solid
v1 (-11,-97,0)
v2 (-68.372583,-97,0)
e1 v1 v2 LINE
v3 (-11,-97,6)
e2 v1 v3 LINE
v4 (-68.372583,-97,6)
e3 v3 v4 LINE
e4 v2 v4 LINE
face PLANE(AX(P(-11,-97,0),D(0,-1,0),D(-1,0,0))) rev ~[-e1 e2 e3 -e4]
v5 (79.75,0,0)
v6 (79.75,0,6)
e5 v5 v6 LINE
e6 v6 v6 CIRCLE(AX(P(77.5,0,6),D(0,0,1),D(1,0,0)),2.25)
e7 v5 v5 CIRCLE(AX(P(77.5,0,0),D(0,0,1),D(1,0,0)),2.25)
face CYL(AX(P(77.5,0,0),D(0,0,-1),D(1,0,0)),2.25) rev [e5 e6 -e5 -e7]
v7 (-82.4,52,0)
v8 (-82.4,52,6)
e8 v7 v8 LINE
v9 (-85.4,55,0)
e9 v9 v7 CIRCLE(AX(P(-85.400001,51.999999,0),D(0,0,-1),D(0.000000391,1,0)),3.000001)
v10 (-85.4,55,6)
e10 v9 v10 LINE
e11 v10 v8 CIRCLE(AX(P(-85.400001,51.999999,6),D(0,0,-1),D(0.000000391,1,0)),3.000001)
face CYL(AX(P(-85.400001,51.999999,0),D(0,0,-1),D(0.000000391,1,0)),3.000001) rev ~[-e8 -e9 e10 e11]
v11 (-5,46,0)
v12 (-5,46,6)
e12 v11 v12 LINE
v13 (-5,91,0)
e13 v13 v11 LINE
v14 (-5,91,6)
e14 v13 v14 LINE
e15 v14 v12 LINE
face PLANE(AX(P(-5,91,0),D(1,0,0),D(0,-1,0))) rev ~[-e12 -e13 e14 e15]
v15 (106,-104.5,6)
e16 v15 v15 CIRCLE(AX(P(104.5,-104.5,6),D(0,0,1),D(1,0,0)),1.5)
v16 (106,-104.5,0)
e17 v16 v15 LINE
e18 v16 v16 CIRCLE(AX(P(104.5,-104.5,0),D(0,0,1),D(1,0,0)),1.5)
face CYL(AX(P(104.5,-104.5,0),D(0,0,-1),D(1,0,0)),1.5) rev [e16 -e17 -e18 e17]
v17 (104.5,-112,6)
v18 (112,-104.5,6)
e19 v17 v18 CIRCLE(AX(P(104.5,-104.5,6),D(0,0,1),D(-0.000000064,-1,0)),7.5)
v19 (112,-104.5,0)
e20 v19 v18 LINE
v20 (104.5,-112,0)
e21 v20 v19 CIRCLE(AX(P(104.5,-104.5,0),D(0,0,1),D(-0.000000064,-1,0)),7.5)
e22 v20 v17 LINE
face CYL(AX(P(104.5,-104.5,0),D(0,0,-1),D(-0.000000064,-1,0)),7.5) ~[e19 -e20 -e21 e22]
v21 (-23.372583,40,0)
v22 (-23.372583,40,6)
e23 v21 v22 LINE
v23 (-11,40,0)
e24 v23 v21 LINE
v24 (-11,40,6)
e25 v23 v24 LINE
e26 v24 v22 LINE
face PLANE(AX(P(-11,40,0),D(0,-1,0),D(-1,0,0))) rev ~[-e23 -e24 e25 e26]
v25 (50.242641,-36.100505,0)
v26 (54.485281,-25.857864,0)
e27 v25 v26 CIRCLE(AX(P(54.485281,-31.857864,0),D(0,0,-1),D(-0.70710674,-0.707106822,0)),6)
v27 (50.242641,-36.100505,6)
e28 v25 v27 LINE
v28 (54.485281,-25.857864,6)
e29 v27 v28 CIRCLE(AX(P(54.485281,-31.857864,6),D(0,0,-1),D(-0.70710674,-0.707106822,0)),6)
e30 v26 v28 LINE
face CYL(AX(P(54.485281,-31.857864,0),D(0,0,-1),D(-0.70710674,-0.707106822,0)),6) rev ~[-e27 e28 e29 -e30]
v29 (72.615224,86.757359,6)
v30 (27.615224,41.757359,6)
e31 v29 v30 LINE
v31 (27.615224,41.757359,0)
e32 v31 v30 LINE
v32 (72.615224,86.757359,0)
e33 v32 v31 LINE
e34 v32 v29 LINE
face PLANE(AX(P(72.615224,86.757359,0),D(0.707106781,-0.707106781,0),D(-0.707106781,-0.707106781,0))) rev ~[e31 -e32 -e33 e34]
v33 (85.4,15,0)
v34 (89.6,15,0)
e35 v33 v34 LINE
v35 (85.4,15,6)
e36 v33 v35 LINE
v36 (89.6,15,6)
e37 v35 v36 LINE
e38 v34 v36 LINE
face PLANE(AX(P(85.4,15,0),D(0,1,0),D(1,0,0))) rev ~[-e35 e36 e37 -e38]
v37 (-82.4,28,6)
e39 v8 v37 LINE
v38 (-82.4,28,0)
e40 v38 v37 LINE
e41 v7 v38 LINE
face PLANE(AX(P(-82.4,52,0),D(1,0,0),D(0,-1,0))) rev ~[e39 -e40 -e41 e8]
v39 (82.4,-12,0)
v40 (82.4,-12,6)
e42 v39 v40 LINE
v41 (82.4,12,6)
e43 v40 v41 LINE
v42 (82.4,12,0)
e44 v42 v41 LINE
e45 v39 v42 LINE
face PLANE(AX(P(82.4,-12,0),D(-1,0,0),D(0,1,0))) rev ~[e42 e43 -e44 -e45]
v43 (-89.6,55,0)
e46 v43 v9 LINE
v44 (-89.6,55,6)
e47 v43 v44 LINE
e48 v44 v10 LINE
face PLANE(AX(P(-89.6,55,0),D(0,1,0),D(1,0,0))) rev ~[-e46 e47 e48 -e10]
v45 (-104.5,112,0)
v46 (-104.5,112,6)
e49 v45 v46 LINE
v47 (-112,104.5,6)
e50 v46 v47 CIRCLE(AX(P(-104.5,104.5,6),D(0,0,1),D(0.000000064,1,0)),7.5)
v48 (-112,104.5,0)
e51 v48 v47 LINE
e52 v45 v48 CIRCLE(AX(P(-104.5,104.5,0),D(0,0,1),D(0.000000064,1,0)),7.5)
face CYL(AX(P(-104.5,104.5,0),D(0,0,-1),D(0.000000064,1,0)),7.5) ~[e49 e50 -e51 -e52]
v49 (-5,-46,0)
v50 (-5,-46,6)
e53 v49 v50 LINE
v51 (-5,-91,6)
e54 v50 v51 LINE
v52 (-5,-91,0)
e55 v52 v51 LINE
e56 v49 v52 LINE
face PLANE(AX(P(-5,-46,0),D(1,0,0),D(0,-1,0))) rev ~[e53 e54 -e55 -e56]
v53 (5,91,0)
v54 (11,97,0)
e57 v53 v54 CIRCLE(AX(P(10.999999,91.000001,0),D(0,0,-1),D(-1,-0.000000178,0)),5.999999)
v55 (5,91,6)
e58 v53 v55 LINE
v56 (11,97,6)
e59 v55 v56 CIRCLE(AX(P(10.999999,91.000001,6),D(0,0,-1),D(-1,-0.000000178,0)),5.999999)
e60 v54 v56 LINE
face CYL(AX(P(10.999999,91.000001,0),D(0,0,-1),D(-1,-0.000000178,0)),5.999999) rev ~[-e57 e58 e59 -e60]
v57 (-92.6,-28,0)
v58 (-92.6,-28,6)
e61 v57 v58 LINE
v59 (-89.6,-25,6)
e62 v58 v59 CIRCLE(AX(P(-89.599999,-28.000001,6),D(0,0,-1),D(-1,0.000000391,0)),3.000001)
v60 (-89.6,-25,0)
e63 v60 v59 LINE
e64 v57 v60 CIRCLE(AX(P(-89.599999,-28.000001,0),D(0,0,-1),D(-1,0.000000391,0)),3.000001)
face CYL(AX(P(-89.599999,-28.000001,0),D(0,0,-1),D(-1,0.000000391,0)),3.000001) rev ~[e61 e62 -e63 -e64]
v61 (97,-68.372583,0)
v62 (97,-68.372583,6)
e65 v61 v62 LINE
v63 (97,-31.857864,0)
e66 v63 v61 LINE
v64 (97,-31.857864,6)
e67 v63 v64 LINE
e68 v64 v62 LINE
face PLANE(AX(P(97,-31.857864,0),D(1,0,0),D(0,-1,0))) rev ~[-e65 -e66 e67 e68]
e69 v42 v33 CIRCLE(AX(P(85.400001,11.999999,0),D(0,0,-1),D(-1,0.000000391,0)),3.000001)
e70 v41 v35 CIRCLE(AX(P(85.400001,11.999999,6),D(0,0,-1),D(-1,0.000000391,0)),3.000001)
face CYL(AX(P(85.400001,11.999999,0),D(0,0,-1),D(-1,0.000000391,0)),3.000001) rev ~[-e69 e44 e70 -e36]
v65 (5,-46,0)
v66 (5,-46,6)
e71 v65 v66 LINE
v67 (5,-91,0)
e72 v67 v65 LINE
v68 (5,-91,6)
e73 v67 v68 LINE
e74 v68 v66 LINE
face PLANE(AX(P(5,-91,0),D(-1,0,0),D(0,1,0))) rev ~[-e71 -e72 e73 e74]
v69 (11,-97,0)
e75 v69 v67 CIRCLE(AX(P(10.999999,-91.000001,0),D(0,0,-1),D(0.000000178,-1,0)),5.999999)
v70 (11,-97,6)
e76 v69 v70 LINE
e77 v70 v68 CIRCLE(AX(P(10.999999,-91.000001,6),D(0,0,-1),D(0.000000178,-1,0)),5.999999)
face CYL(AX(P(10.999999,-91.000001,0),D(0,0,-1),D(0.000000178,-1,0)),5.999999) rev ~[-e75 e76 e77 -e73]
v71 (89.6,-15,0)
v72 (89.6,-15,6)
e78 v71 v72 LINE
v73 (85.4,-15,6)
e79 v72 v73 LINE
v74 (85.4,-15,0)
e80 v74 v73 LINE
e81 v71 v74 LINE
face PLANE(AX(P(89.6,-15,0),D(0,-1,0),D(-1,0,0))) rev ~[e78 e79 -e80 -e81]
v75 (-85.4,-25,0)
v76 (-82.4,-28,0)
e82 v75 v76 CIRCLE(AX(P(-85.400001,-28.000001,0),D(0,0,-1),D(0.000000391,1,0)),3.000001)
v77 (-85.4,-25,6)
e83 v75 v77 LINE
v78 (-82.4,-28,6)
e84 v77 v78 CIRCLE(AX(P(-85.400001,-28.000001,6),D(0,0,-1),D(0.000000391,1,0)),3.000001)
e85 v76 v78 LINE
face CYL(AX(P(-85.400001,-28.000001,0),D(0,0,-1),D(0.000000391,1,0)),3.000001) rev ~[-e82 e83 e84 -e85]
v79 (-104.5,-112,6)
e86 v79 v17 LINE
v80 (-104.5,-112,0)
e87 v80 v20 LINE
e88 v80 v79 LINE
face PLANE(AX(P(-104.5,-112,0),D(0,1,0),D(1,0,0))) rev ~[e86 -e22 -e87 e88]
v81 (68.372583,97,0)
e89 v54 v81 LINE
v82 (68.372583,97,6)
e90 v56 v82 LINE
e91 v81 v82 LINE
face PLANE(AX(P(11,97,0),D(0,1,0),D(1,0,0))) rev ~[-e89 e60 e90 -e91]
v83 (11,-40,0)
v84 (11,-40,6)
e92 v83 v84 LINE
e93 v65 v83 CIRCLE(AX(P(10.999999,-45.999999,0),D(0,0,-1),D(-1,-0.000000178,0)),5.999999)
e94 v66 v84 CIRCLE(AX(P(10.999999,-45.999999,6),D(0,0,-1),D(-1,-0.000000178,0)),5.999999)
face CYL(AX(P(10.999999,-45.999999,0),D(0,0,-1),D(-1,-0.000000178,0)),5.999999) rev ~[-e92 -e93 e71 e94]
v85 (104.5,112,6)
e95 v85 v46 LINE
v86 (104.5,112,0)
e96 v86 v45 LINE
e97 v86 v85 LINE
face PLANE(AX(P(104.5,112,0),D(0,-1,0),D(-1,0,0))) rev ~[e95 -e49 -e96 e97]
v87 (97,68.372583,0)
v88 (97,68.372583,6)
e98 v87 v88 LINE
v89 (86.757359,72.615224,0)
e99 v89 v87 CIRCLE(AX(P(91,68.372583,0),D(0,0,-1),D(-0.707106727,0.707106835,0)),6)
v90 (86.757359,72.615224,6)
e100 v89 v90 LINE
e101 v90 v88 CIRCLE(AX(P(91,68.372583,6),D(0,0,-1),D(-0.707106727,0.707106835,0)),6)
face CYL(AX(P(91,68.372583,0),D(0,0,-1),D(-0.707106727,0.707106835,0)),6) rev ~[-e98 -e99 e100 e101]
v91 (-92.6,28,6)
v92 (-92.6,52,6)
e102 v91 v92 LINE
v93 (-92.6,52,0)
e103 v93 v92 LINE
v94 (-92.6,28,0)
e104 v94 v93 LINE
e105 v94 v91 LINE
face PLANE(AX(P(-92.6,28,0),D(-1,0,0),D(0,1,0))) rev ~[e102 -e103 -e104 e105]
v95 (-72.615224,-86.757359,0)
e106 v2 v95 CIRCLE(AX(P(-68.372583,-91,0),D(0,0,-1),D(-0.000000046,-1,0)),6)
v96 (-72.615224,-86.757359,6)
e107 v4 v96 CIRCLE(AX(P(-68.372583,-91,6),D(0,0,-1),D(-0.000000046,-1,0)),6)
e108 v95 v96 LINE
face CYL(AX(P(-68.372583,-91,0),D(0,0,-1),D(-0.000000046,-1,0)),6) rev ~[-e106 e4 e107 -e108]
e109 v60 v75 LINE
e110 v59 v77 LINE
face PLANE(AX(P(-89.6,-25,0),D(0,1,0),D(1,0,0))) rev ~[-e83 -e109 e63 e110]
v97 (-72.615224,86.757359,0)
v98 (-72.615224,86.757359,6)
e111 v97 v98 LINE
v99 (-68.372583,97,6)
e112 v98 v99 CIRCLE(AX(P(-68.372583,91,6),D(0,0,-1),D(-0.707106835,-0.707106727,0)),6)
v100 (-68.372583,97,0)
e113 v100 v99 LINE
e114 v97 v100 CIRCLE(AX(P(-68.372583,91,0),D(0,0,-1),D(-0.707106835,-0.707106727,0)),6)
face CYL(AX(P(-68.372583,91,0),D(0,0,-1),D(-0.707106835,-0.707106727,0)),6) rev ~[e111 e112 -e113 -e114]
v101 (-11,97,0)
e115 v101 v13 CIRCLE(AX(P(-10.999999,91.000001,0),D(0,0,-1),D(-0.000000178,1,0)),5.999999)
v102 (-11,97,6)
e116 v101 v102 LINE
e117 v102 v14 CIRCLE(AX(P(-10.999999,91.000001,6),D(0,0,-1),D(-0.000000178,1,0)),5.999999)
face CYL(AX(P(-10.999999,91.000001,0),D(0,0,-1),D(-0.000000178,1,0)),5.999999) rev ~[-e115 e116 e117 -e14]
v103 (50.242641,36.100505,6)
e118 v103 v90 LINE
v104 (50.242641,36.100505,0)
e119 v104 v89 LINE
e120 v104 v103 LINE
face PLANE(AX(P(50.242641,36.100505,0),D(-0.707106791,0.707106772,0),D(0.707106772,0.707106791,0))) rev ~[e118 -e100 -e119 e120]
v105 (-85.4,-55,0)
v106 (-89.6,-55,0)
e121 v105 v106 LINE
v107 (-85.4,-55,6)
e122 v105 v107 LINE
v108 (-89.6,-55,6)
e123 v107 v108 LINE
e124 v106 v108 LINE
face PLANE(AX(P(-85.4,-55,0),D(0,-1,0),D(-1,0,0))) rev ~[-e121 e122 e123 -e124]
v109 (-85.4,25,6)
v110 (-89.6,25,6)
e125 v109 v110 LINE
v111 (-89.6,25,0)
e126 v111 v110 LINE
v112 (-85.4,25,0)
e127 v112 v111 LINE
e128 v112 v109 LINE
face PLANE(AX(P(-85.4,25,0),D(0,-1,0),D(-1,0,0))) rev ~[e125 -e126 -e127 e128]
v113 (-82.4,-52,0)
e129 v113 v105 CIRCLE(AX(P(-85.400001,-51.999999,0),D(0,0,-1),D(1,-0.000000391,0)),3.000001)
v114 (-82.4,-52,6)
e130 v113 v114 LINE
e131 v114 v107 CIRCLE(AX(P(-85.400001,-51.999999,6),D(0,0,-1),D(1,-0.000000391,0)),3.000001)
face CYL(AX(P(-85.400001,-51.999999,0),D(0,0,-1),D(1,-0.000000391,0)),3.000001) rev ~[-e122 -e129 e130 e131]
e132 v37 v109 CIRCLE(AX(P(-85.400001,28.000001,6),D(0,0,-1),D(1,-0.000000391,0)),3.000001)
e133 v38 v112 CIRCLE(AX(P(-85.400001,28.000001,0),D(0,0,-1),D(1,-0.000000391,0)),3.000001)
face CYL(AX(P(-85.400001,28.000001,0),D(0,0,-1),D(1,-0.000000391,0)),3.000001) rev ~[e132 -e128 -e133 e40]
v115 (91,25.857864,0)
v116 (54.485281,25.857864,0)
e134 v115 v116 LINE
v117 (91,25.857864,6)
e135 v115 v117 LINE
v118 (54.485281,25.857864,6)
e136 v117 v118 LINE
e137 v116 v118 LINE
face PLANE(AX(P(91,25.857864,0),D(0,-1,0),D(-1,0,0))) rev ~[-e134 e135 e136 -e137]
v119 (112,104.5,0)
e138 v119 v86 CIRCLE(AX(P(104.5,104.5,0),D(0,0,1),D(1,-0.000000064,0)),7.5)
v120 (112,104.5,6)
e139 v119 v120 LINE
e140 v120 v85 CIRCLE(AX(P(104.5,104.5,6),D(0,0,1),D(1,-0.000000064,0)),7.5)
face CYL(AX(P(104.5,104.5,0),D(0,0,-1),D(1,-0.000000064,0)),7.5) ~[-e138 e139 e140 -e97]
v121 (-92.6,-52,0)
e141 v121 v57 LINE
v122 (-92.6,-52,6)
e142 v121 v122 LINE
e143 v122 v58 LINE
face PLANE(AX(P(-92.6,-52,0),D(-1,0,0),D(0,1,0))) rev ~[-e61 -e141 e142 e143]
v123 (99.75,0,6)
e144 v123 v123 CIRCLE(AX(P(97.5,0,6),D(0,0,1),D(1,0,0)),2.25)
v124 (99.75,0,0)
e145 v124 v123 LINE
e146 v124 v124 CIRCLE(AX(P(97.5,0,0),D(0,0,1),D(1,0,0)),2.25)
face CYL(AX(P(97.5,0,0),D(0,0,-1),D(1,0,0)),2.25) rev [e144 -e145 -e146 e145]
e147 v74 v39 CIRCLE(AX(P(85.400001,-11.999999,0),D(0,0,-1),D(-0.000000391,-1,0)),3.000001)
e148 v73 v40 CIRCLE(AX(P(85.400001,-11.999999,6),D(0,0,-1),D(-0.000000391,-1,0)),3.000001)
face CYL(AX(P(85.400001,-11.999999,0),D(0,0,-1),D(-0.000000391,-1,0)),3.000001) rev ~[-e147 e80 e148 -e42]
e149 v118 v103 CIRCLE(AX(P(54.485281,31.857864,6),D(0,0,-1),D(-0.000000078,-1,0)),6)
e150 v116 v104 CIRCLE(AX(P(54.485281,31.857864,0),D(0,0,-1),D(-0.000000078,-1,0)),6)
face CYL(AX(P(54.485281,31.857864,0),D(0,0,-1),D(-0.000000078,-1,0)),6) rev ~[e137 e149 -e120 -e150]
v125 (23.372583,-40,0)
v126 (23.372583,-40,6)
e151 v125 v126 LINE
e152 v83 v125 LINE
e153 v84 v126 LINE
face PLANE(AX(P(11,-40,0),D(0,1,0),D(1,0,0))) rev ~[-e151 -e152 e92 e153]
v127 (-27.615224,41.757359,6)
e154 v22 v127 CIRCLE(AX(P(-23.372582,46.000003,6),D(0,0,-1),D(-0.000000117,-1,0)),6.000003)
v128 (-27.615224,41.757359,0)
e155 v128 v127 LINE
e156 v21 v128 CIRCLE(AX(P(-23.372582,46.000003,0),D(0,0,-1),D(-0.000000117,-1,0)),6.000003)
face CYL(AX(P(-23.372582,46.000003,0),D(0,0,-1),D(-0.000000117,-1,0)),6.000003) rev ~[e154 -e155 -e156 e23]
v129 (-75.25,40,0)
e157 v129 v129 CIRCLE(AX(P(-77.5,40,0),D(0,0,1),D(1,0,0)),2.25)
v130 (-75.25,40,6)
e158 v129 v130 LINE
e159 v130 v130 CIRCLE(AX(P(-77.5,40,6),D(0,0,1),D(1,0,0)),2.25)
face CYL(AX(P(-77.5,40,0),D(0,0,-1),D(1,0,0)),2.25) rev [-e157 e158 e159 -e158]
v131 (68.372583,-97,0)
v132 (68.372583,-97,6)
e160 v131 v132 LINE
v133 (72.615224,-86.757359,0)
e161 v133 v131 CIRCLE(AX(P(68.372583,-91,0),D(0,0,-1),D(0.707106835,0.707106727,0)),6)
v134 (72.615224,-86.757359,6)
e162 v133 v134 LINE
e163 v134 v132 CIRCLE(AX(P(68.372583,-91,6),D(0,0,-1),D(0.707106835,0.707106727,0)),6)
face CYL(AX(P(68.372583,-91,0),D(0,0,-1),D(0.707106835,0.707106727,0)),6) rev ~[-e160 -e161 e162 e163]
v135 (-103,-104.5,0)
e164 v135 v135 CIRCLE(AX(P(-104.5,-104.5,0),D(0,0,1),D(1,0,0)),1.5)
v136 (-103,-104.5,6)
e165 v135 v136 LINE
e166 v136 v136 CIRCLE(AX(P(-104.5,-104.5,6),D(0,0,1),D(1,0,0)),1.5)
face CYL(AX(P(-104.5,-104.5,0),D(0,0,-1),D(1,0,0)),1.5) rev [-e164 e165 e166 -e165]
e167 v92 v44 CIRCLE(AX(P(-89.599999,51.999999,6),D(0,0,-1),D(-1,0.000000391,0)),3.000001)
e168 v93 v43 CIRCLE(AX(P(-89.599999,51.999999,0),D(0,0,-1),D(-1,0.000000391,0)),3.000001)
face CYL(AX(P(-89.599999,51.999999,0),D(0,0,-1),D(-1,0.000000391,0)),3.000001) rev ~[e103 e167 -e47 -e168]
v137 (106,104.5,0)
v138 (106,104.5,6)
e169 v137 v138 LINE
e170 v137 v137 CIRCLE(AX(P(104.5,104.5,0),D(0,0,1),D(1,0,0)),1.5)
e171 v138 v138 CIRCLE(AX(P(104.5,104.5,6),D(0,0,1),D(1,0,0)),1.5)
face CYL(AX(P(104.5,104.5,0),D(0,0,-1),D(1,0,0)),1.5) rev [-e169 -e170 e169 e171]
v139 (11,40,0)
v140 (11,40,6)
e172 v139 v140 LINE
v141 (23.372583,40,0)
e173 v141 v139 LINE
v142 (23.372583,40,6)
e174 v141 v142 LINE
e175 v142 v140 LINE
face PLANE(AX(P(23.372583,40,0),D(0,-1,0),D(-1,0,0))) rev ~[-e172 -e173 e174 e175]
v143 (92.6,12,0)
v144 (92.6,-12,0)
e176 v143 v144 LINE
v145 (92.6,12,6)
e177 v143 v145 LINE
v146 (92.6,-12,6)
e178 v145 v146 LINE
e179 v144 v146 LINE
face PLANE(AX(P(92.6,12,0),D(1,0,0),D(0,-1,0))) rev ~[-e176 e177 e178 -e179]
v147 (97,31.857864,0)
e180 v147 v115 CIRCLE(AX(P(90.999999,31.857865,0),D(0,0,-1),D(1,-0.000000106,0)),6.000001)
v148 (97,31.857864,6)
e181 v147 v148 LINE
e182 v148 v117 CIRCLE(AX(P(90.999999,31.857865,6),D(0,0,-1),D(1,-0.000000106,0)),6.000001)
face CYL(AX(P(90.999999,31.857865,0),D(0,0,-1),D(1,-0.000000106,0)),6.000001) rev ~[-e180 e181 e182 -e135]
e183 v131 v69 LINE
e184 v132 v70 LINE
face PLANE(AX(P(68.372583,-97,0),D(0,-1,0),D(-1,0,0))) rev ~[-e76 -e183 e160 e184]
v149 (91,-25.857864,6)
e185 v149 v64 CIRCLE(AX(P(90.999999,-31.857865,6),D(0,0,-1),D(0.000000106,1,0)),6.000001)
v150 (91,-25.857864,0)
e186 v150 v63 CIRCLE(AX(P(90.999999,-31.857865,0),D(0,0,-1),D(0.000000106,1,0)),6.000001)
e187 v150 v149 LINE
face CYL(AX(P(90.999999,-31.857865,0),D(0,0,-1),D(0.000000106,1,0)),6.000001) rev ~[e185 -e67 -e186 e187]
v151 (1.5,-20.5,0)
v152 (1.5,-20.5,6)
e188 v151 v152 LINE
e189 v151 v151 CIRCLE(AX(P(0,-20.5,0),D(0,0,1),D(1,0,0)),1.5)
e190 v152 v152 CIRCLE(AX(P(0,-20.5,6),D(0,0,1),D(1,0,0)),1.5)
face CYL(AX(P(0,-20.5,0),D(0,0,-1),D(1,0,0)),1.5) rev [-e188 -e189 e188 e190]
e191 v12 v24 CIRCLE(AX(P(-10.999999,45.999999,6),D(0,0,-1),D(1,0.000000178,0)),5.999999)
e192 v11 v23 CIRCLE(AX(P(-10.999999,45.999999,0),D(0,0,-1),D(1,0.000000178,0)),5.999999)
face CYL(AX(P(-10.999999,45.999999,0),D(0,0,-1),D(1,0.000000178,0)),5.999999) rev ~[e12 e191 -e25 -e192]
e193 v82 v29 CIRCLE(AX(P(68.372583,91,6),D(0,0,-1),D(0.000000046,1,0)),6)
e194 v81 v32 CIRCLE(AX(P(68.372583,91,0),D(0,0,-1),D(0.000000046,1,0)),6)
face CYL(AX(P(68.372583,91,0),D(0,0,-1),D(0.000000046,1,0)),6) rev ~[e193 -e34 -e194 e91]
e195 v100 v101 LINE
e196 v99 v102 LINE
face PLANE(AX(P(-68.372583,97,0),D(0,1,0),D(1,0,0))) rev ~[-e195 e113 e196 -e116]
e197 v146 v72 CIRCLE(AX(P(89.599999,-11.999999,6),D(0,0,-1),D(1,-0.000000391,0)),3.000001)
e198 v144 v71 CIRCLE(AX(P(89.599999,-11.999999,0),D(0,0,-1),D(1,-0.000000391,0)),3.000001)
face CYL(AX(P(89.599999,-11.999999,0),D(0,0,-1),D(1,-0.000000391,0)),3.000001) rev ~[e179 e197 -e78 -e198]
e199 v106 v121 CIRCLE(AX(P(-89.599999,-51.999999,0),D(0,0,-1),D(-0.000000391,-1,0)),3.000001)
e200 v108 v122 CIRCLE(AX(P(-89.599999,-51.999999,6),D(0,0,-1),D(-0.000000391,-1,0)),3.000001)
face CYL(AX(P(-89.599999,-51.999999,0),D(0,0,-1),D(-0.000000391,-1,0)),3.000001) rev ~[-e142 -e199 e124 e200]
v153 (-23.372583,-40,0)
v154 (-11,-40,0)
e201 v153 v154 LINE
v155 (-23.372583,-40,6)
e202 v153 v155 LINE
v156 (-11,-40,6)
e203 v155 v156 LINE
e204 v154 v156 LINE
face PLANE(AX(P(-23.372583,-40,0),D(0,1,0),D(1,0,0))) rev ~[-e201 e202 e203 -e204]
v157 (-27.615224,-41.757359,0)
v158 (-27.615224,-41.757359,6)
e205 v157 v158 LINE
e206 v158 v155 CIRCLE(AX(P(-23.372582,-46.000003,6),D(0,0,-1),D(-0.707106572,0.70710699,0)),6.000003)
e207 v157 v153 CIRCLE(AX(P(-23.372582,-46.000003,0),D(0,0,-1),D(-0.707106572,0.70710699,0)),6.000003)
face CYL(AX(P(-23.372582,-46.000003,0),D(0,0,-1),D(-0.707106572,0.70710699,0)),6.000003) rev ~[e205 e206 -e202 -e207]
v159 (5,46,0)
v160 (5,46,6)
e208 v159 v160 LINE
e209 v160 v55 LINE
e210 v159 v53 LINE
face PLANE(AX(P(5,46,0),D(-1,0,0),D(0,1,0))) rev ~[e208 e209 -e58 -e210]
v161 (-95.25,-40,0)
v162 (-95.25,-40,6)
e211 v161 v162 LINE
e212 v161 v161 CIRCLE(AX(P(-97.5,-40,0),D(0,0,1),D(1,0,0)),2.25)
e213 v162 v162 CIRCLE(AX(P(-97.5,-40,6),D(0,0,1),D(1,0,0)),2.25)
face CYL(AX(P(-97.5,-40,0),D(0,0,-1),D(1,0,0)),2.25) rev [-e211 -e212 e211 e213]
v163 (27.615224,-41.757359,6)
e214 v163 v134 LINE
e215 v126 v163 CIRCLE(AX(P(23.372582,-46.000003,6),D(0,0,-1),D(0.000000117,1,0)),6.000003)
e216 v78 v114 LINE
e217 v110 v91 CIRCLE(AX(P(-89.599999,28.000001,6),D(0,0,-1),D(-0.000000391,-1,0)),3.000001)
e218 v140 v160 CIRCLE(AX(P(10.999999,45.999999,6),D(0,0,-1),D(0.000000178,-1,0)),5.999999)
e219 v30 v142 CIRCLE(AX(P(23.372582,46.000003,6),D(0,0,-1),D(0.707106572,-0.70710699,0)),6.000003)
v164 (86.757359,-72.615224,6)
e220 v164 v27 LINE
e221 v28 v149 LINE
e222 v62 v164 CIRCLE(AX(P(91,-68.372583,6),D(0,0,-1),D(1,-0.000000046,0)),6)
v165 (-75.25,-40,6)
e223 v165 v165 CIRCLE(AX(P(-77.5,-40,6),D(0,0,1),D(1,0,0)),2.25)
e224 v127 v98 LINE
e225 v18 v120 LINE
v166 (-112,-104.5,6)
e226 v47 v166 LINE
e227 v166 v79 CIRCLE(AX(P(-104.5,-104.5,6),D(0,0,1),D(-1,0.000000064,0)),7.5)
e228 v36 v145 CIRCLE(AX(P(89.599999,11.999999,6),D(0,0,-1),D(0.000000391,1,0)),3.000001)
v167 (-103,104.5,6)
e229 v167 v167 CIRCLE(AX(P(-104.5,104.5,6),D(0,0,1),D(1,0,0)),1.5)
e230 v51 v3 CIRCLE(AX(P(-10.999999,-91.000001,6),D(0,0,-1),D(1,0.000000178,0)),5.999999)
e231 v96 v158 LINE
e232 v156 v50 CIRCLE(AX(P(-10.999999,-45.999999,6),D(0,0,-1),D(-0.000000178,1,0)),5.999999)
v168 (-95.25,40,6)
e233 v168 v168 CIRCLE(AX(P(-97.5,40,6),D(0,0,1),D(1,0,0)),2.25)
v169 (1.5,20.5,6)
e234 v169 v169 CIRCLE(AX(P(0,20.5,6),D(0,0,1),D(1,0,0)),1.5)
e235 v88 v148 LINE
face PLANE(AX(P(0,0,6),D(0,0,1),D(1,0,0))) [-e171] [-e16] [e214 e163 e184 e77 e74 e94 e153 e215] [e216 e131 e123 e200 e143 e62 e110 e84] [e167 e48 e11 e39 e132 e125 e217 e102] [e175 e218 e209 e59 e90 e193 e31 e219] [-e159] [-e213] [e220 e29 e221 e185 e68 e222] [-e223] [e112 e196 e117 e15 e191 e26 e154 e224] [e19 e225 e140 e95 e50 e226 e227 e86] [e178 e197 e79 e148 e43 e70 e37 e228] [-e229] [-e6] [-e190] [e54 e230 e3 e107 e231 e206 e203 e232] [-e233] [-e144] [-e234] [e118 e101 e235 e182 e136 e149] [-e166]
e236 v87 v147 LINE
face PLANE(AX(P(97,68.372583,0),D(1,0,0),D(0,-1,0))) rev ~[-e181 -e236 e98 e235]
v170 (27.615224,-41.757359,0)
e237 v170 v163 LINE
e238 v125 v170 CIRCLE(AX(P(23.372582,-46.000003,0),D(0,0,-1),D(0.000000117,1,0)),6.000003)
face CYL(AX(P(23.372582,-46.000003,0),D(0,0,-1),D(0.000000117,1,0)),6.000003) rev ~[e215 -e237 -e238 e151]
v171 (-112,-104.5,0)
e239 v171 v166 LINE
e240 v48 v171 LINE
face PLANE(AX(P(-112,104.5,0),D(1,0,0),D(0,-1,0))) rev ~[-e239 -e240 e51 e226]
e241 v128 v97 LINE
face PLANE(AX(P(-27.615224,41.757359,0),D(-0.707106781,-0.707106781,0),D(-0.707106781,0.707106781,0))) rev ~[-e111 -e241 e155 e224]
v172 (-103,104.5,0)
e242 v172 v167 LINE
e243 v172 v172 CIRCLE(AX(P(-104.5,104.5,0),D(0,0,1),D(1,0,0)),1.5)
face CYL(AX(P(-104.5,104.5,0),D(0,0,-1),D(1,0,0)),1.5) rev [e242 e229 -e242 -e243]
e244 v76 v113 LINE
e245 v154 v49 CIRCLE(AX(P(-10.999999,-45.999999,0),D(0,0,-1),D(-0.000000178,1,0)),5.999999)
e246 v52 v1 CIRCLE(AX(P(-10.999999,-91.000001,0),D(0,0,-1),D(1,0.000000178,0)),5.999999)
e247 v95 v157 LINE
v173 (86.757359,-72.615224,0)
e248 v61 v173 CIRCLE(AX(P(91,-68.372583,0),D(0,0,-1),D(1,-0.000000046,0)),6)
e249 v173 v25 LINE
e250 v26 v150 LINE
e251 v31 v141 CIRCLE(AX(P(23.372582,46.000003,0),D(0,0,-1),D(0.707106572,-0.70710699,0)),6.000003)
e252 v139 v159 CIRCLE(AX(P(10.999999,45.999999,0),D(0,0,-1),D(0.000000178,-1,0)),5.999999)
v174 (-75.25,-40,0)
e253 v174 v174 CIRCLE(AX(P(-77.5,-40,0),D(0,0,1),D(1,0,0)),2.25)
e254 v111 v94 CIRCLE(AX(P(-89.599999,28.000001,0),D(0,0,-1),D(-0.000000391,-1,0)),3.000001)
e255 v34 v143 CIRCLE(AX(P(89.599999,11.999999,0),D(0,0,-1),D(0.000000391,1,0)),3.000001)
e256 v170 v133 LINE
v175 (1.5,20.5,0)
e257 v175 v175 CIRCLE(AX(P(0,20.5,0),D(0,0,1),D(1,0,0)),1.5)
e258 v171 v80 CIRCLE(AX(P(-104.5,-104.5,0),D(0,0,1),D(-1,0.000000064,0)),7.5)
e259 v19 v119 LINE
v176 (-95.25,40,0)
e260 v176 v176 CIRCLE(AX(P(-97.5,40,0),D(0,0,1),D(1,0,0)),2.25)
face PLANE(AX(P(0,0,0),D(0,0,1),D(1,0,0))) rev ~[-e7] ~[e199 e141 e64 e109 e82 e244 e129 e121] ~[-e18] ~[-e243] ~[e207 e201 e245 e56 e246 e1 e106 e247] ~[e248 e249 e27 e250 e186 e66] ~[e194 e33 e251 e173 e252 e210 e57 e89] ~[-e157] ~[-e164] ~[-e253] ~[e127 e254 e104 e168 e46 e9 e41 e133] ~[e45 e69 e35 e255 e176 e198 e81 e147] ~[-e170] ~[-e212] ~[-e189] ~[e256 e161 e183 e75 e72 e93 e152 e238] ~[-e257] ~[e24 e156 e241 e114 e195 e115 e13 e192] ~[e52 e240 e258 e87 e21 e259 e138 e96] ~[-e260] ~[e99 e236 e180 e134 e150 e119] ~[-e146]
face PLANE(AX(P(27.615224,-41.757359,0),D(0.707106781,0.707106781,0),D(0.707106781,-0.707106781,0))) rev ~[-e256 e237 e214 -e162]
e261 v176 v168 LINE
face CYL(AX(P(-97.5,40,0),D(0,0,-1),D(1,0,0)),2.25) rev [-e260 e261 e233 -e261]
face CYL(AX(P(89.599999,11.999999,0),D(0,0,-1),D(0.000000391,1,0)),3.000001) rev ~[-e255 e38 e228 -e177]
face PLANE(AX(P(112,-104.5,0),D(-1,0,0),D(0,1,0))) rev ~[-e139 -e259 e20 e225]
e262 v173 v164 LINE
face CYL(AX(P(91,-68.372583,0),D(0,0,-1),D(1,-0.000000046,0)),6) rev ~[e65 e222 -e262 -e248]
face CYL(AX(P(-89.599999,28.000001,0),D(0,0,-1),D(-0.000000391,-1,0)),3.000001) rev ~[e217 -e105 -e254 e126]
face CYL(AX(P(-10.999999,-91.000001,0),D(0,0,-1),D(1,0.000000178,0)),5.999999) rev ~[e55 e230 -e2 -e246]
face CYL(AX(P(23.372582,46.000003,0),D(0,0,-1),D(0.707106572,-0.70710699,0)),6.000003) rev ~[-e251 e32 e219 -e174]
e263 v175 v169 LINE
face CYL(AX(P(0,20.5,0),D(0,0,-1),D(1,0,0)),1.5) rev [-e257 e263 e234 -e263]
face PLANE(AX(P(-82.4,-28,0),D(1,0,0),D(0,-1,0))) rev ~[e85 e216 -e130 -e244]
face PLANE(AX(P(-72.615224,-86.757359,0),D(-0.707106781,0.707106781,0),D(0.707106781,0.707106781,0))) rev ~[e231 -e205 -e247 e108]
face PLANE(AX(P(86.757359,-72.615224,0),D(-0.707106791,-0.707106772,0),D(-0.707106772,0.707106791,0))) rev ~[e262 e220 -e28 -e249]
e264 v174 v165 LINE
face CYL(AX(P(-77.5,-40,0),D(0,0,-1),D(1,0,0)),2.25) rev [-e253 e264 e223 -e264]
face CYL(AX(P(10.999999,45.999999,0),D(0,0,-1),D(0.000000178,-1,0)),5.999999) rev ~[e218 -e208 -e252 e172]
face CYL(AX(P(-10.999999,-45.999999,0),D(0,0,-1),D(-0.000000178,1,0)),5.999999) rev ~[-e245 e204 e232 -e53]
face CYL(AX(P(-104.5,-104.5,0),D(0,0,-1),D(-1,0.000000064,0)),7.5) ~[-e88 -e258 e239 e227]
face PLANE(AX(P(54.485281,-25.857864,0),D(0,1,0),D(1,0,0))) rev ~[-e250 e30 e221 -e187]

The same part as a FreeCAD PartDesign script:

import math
import FreeCAD as App
import Part
import Sketcher

doc = App.newDocument("Part")
params = doc.addObject("Spreadsheet::Sheet", "Params")
for row, (alias, value) in enumerate([
    ("sketch1_diameter", "3 mm"),
    ("sketch1_radius", "6 mm"),
    ("sketch1_radius2", "3.000001 mm"),
    ("sketch1_diameter2", "4.5 mm"),
    ("sketch1_radius3", "7.5 mm"),
    ("pad1_length", "6 mm"),
], start=1):
    params.set(f"A{row}", alias)
    params.set(f"B{row}", "=" + value)
    params.setAlias(f"B{row}", alias)

body = doc.addObject("PartDesign::Body", "Body")

sketch1 = body.newObject("Sketcher::SketchObject", "Sketch")
sketch1.AttachmentSupport = (doc.getObject("XY_Plane"), [""])
sketch1.MapMode = "FlatFace"
sketch1.addGeometry(Part.LineSegment(App.Vector(104.5, 112, 0), App.Vector(-104.5, 112, 0)), False)
sketch1.addGeometry(Part.ArcOfCircle(Part.Circle(App.Vector(-104.5, 104.5, 0), App.Vector(0, 0, 1), 7.5), math.radians(90), math.radians(180)), False)
sketch1.addGeometry(Part.LineSegment(App.Vector(-112, 104.5, 0), App.Vector(-112, -104.5, 0)), False)
sketch1.addGeometry(Part.ArcOfCircle(Part.Circle(App.Vector(-104.5, -104.5, 0), App.Vector(0, 0, 1), 7.5), math.radians(180), math.radians(270)), False)
sketch1.addGeometry(Part.LineSegment(App.Vector(-104.5, -112, 0), App.Vector(104.5, -112, 0)), False)
sketch1.addGeometry(Part.ArcOfCircle(Part.Circle(App.Vector(104.5, -104.5, 0), App.Vector(0, 0, 1), 7.5), math.radians(-90), math.radians(0)), False)
sketch1.addGeometry(Part.LineSegment(App.Vector(112, -104.5, 0), App.Vector(112, 104.5, 0)), False)
sketch1.addGeometry(Part.ArcOfCircle(Part.Circle(App.Vector(104.5, 104.5, 0), App.Vector(0, 0, 1), 7.5), math.radians(0), math.radians(90)), False)
sketch1.addGeometry(Part.Circle(App.Vector(-104.5, -104.5, 0), App.Vector(0, 0, 1), 1.5), False)
sketch1.addGeometry(Part.ArcOfCircle(Part.Circle(App.Vector(-68.4, -91, 0), App.Vector(0, 0, 1), 6), math.radians(135), math.radians(270)), False)
sketch1.addGeometry(Part.LineSegment(App.Vector(-72.6, -86.8, 0), App.Vector(-27.6, -41.8, 0)), False)
sketch1.addGeometry(Part.ArcOfCircle(Part.Circle(App.Vector(-23.4, -46, 0), App.Vector(0, 0, 1), 6), math.radians(90), math.radians(135)), False)
sketch1.addGeometry(Part.LineSegment(App.Vector(-23.4, -40, 0), App.Vector(-11, -40, 0)), False)
sketch1.addGeometry(Part.ArcOfCircle(Part.Circle(App.Vector(-11, -46, 0), App.Vector(0, 0, 1), 6), math.radians(0), math.radians(90)), False)
sketch1.addGeometry(Part.LineSegment(App.Vector(-5, -46, 0), App.Vector(-5, -91, 0)), False)
sketch1.addGeometry(Part.ArcOfCircle(Part.Circle(App.Vector(-11, -91, 0), App.Vector(0, 0, 1), 6), math.radians(-90), math.radians(0)), False)
sketch1.addGeometry(Part.LineSegment(App.Vector(-11, -97, 0), App.Vector(-68.4, -97, 0)), False)
sketch1.addGeometry(Part.Circle(App.Vector(-97.5, -40, 0), App.Vector(0, 0, 1), 2.2), False)
sketch1.addGeometry(Part.ArcOfCircle(Part.Circle(App.Vector(-89.6, -28, 0), App.Vector(0, 0, 1), 3), math.radians(90), math.radians(180)), False)
sketch1.addGeometry(Part.LineSegment(App.Vector(-89.6, -25, 0), App.Vector(-85.4, -25, 0)), False)
sketch1.addGeometry(Part.ArcOfCircle(Part.Circle(App.Vector(-85.4, -28, 0), App.Vector(0, 0, 1), 3), math.radians(0), math.radians(90)), False)
sketch1.addGeometry(Part.LineSegment(App.Vector(-82.4, -28, 0), App.Vector(-82.4, -52, 0)), False)
sketch1.addGeometry(Part.ArcOfCircle(Part.Circle(App.Vector(-85.4, -52, 0), App.Vector(0, 0, 1), 3), math.radians(-90), math.radians(0)), False)
sketch1.addGeometry(Part.LineSegment(App.Vector(-85.4, -55, 0), App.Vector(-89.6, -55, 0)), False)
sketch1.addGeometry(Part.ArcOfCircle(Part.Circle(App.Vector(-89.6, -52, 0), App.Vector(0, 0, 1), 3), math.radians(-180), math.radians(-90)), False)
sketch1.addGeometry(Part.LineSegment(App.Vector(-92.6, -52, 0), App.Vector(-92.6, -28, 0)), False)
sketch1.addGeometry(Part.Circle(App.Vector(-77.5, -40, 0), App.Vector(0, 0, 1), 2.2), False)
sketch1.addGeometry(Part.LineSegment(App.Vector(11, -40, 0), App.Vector(23.4, -40, 0)), False)
sketch1.addGeometry(Part.ArcOfCircle(Part.Circle(App.Vector(23.4, -46, 0), App.Vector(0, 0, 1), 6), math.radians(45), math.radians(90)), False)
sketch1.addGeometry(Part.LineSegment(App.Vector(27.6, -41.8, 0), App.Vector(72.6, -86.8, 0)), False)
sketch1.addGeometry(Part.ArcOfCircle(Part.Circle(App.Vector(68.4, -91, 0), App.Vector(0, 0, 1), 6), math.radians(-90), math.radians(45)), False)
sketch1.addGeometry(Part.LineSegment(App.Vector(68.4, -97, 0), App.Vector(11, -97, 0)), False)
sketch1.addGeometry(Part.ArcOfCircle(Part.Circle(App.Vector(11, -91, 0), App.Vector(0, 0, 1), 6), math.radians(180), math.radians(270)), False)
sketch1.addGeometry(Part.LineSegment(App.Vector(5, -91, 0), App.Vector(5, -46, 0)), False)
sketch1.addGeometry(Part.ArcOfCircle(Part.Circle(App.Vector(11, -46, 0), App.Vector(0, 0, 1), 6), math.radians(90), math.radians(180)), False)
sketch1.addGeometry(Part.Circle(App.Vector(104.5, -104.5, 0), App.Vector(0, 0, 1), 1.5), False)
sketch1.addGeometry(Part.Circle(App.Vector(0, -20.5, 0), App.Vector(0, 0, 1), 1.5), False)
sketch1.addGeometry(Part.LineSegment(App.Vector(97, -31.9, 0), App.Vector(97, -68.4, 0)), False)
sketch1.addGeometry(Part.ArcOfCircle(Part.Circle(App.Vector(91, -68.4, 0), App.Vector(0, 0, 1), 6), math.radians(-135), math.radians(0)), False)
sketch1.addGeometry(Part.LineSegment(App.Vector(86.8, -72.6, 0), App.Vector(50.2, -36.1, 0)), False)
sketch1.addGeometry(Part.ArcOfCircle(Part.Circle(App.Vector(54.5, -31.9, 0), App.Vector(0, 0, 1), 6), math.radians(90), math.radians(225)), False)
sketch1.addGeometry(Part.LineSegment(App.Vector(54.5, -25.9, 0), App.Vector(91, -25.9, 0)), False)
sketch1.addGeometry(Part.ArcOfCircle(Part.Circle(App.Vector(91, -31.9, 0), App.Vector(0, 0, 1), 6), math.radians(0), math.radians(90)), False)
sketch1.addGeometry(Part.Circle(App.Vector(-97.5, 40, 0), App.Vector(0, 0, 1), 2.2), False)
sketch1.addGeometry(Part.LineSegment(App.Vector(-82.4, 52, 0), App.Vector(-82.4, 28, 0)), False)
sketch1.addGeometry(Part.ArcOfCircle(Part.Circle(App.Vector(-85.4, 28, 0), App.Vector(0, 0, 1), 3), math.radians(-90), math.radians(0)), False)
sketch1.addGeometry(Part.LineSegment(App.Vector(-85.4, 25, 0), App.Vector(-89.6, 25, 0)), False)
sketch1.addGeometry(Part.ArcOfCircle(Part.Circle(App.Vector(-89.6, 28, 0), App.Vector(0, 0, 1), 3), math.radians(-180), math.radians(-90)), False)
sketch1.addGeometry(Part.LineSegment(App.Vector(-92.6, 28, 0), App.Vector(-92.6, 52, 0)), False)
sketch1.addGeometry(Part.ArcOfCircle(Part.Circle(App.Vector(-89.6, 52, 0), App.Vector(0, 0, 1), 3), math.radians(90), math.radians(180)), False)
sketch1.addGeometry(Part.LineSegment(App.Vector(-89.6, 55, 0), App.Vector(-85.4, 55, 0)), False)
sketch1.addGeometry(Part.ArcOfCircle(Part.Circle(App.Vector(-85.4, 52, 0), App.Vector(0, 0, 1), 3), math.radians(0), math.radians(90)), False)
sketch1.addGeometry(Part.Circle(App.Vector(-77.5, 40, 0), App.Vector(0, 0, 1), 2.2), False)
sketch1.addGeometry(Part.Circle(App.Vector(-104.5, 104.5, 0), App.Vector(0, 0, 1), 1.5), False)
sketch1.addGeometry(Part.LineSegment(App.Vector(-68.4, 97, 0), App.Vector(-11, 97, 0)), False)
sketch1.addGeometry(Part.ArcOfCircle(Part.Circle(App.Vector(-11, 91, 0), App.Vector(0, 0, 1), 6), math.radians(0), math.radians(90)), False)
sketch1.addGeometry(Part.LineSegment(App.Vector(-5, 91, 0), App.Vector(-5, 46, 0)), False)
sketch1.addGeometry(Part.ArcOfCircle(Part.Circle(App.Vector(-11, 46, 0), App.Vector(0, 0, 1), 6), math.radians(-90), math.radians(0)), False)
sketch1.addGeometry(Part.LineSegment(App.Vector(-11, 40, 0), App.Vector(-23.4, 40, 0)), False)
sketch1.addGeometry(Part.ArcOfCircle(Part.Circle(App.Vector(-23.4, 46, 0), App.Vector(0, 0, 1), 6), math.radians(-135), math.radians(-90)), False)
sketch1.addGeometry(Part.LineSegment(App.Vector(-27.6, 41.8, 0), App.Vector(-72.6, 86.8, 0)), False)
sketch1.addGeometry(Part.ArcOfCircle(Part.Circle(App.Vector(-68.4, 91, 0), App.Vector(0, 0, 1), 6), math.radians(90), math.radians(225)), False)
sketch1.addGeometry(Part.Circle(App.Vector(0, 20.5, 0), App.Vector(0, 0, 1), 1.5), False)
sketch1.addGeometry(Part.Circle(App.Vector(77.5, 0, 0), App.Vector(0, 0, 1), 2.2), False)
sketch1.addGeometry(Part.ArcOfCircle(Part.Circle(App.Vector(85.4, 12, 0), App.Vector(0, 0, 1), 3), math.radians(90), math.radians(180)), False)
sketch1.addGeometry(Part.LineSegment(App.Vector(85.4, 15, 0), App.Vector(89.6, 15, 0)), False)
sketch1.addGeometry(Part.ArcOfCircle(Part.Circle(App.Vector(89.6, 12, 0), App.Vector(0, 0, 1), 3), math.radians(0), math.radians(90)), False)
sketch1.addGeometry(Part.LineSegment(App.Vector(92.6, 12, 0), App.Vector(92.6, -12, 0)), False)
sketch1.addGeometry(Part.ArcOfCircle(Part.Circle(App.Vector(89.6, -12, 0), App.Vector(0, 0, 1), 3), math.radians(-90), math.radians(0)), False)
sketch1.addGeometry(Part.LineSegment(App.Vector(89.6, -15, 0), App.Vector(85.4, -15, 0)), False)
sketch1.addGeometry(Part.ArcOfCircle(Part.Circle(App.Vector(85.4, -12, 0), App.Vector(0, 0, 1), 3), math.radians(-180), math.radians(-90)), False)
sketch1.addGeometry(Part.LineSegment(App.Vector(82.4, -12, 0), App.Vector(82.4, 12, 0)), False)
sketch1.addGeometry(Part.Circle(App.Vector(97.5, 0, 0), App.Vector(0, 0, 1), 2.2), False)
sketch1.addGeometry(Part.LineSegment(App.Vector(91, 25.9, 0), App.Vector(54.5, 25.9, 0)), False)
sketch1.addGeometry(Part.ArcOfCircle(Part.Circle(App.Vector(54.5, 31.9, 0), App.Vector(0, 0, 1), 6), math.radians(135), math.radians(270)), False)
sketch1.addGeometry(Part.LineSegment(App.Vector(50.2, 36.1, 0), App.Vector(86.8, 72.6, 0)), False)
sketch1.addGeometry(Part.ArcOfCircle(Part.Circle(App.Vector(91, 68.4, 0), App.Vector(0, 0, 1), 6), math.radians(0), math.radians(135)), False)
sketch1.addGeometry(Part.LineSegment(App.Vector(97, 68.4, 0), App.Vector(97, 31.9, 0)), False)
sketch1.addGeometry(Part.ArcOfCircle(Part.Circle(App.Vector(91, 31.9, 0), App.Vector(0, 0, 1), 6), math.radians(-90), math.radians(0)), False)
sketch1.addGeometry(Part.ArcOfCircle(Part.Circle(App.Vector(11, 46, 0), App.Vector(0, 0, 1), 6), math.radians(180), math.radians(270)), False)
sketch1.addGeometry(Part.LineSegment(App.Vector(5, 46, 0), App.Vector(5, 91, 0)), False)
sketch1.addGeometry(Part.ArcOfCircle(Part.Circle(App.Vector(11, 91, 0), App.Vector(0, 0, 1), 6), math.radians(90), math.radians(180)), False)
sketch1.addGeometry(Part.LineSegment(App.Vector(11, 97, 0), App.Vector(68.4, 97, 0)), False)
sketch1.addGeometry(Part.ArcOfCircle(Part.Circle(App.Vector(68.4, 91, 0), App.Vector(0, 0, 1), 6), math.radians(-45), math.radians(90)), False)
sketch1.addGeometry(Part.LineSegment(App.Vector(72.6, 86.8, 0), App.Vector(27.6, 41.8, 0)), False)
sketch1.addGeometry(Part.ArcOfCircle(Part.Circle(App.Vector(23.4, 46, 0), App.Vector(0, 0, 1), 6), math.radians(-90), math.radians(-45)), False)
sketch1.addGeometry(Part.LineSegment(App.Vector(23.4, 40, 0), App.Vector(11, 40, 0)), False)
sketch1.addGeometry(Part.Circle(App.Vector(104.5, 104.5, 0), App.Vector(0, 0, 1), 1.5), False)
sketch1.addConstraint(Sketcher.Constraint("Tangent", 0, 2, 1, 1))
sketch1.addConstraint(Sketcher.Constraint("Tangent", 1, 2, 2, 1))
sketch1.addConstraint(Sketcher.Constraint("Tangent", 2, 2, 3, 1))
sketch1.addConstraint(Sketcher.Constraint("Tangent", 3, 2, 4, 1))
sketch1.addConstraint(Sketcher.Constraint("Tangent", 4, 2, 5, 1))
sketch1.addConstraint(Sketcher.Constraint("Tangent", 5, 2, 6, 1))
sketch1.addConstraint(Sketcher.Constraint("Tangent", 6, 2, 7, 1))
sketch1.addConstraint(Sketcher.Constraint("Tangent", 7, 2, 0, 1))
sketch1.addConstraint(Sketcher.Constraint("Tangent", 9, 1, 10, 1))
sketch1.addConstraint(Sketcher.Constraint("Tangent", 10, 2, 11, 2))
sketch1.addConstraint(Sketcher.Constraint("Tangent", 11, 1, 12, 1))
sketch1.addConstraint(Sketcher.Constraint("Tangent", 12, 2, 13, 2))
sketch1.addConstraint(Sketcher.Constraint("Tangent", 13, 1, 14, 1))
sketch1.addConstraint(Sketcher.Constraint("Tangent", 14, 2, 15, 2))
sketch1.addConstraint(Sketcher.Constraint("Tangent", 15, 1, 16, 1))
sketch1.addConstraint(Sketcher.Constraint("Tangent", 16, 2, 9, 2))
sketch1.addConstraint(Sketcher.Constraint("Tangent", 18, 1, 19, 1))
sketch1.addConstraint(Sketcher.Constraint("Tangent", 19, 2, 20, 2))
sketch1.addConstraint(Sketcher.Constraint("Tangent", 20, 1, 21, 1))
sketch1.addConstraint(Sketcher.Constraint("Tangent", 21, 2, 22, 2))
sketch1.addConstraint(Sketcher.Constraint("Tangent", 22, 1, 23, 1))
sketch1.addConstraint(Sketcher.Constraint("Tangent", 23, 2, 24, 2))
sketch1.addConstraint(Sketcher.Constraint("Tangent", 24, 1, 25, 1))
sketch1.addConstraint(Sketcher.Constraint("Tangent", 25, 2, 18, 2))
sketch1.addConstraint(Sketcher.Constraint("Tangent", 27, 2, 28, 2))
sketch1.addConstraint(Sketcher.Constraint("Tangent", 28, 1, 29, 1))
sketch1.addConstraint(Sketcher.Constraint("Tangent", 29, 2, 30, 2))
sketch1.addConstraint(Sketcher.Constraint("Tangent", 30, 1, 31, 1))
sketch1.addConstraint(Sketcher.Constraint("Tangent", 31, 2, 32, 2))
sketch1.addConstraint(Sketcher.Constraint("Tangent", 32, 1, 33, 1))
sketch1.addConstraint(Sketcher.Constraint("Tangent", 33, 2, 34, 2))
sketch1.addConstraint(Sketcher.Constraint("Tangent", 34, 1, 27, 1))
sketch1.addConstraint(Sketcher.Constraint("Tangent", 37, 2, 38, 2))
sketch1.addConstraint(Sketcher.Constraint("Tangent", 38, 1, 39, 1))
sketch1.addConstraint(Sketcher.Constraint("Tangent", 39, 2, 40, 2))
sketch1.addConstraint(Sketcher.Constraint("Tangent", 40, 1, 41, 1))
sketch1.addConstraint(Sketcher.Constraint("Tangent", 41, 2, 42, 2))
sketch1.addConstraint(Sketcher.Constraint("Tangent", 42, 1, 37, 1))
sketch1.addConstraint(Sketcher.Constraint("Tangent", 44, 2, 45, 2))
sketch1.addConstraint(Sketcher.Constraint("Tangent", 45, 1, 46, 1))
sketch1.addConstraint(Sketcher.Constraint("Tangent", 46, 2, 47, 2))
sketch1.addConstraint(Sketcher.Constraint("Tangent", 47, 1, 48, 1))
sketch1.addConstraint(Sketcher.Constraint("Tangent", 48, 2, 49, 2))
sketch1.addConstraint(Sketcher.Constraint("Tangent", 49, 1, 50, 1))
sketch1.addConstraint(Sketcher.Constraint("Tangent", 50, 2, 51, 2))
sketch1.addConstraint(Sketcher.Constraint("Tangent", 51, 1, 44, 1))
sketch1.addConstraint(Sketcher.Constraint("Tangent", 54, 2, 55, 2))
sketch1.addConstraint(Sketcher.Constraint("Tangent", 55, 1, 56, 1))
sketch1.addConstraint(Sketcher.Constraint("Tangent", 56, 2, 57, 2))
sketch1.addConstraint(Sketcher.Constraint("Tangent", 57, 1, 58, 1))
sketch1.addConstraint(Sketcher.Constraint("Tangent", 58, 2, 59, 2))
sketch1.addConstraint(Sketcher.Constraint("Tangent", 59, 1, 60, 1))
sketch1.addConstraint(Sketcher.Constraint("Tangent", 60, 2, 61, 2))
sketch1.addConstraint(Sketcher.Constraint("Tangent", 61, 1, 54, 1))
sketch1.addConstraint(Sketcher.Constraint("Tangent", 64, 1, 65, 1))
sketch1.addConstraint(Sketcher.Constraint("Tangent", 65, 2, 66, 2))
sketch1.addConstraint(Sketcher.Constraint("Tangent", 66, 1, 67, 1))
sketch1.addConstraint(Sketcher.Constraint("Tangent", 67, 2, 68, 2))
sketch1.addConstraint(Sketcher.Constraint("Tangent", 68, 1, 69, 1))
sketch1.addConstraint(Sketcher.Constraint("Tangent", 69, 2, 70, 2))
sketch1.addConstraint(Sketcher.Constraint("Tangent", 70, 1, 71, 1))
sketch1.addConstraint(Sketcher.Constraint("Tangent", 71, 2, 64, 2))
sketch1.addConstraint(Sketcher.Constraint("Tangent", 73, 2, 74, 2))
sketch1.addConstraint(Sketcher.Constraint("Tangent", 74, 1, 75, 1))
sketch1.addConstraint(Sketcher.Constraint("Tangent", 75, 2, 76, 2))
sketch1.addConstraint(Sketcher.Constraint("Tangent", 76, 1, 77, 1))
sketch1.addConstraint(Sketcher.Constraint("Tangent", 77, 2, 78, 2))
sketch1.addConstraint(Sketcher.Constraint("Tangent", 78, 1, 73, 1))
sketch1.addConstraint(Sketcher.Constraint("Tangent", 79, 1, 80, 1))
sketch1.addConstraint(Sketcher.Constraint("Tangent", 80, 2, 81, 2))
sketch1.addConstraint(Sketcher.Constraint("Tangent", 81, 1, 82, 1))
sketch1.addConstraint(Sketcher.Constraint("Tangent", 82, 2, 83, 2))
sketch1.addConstraint(Sketcher.Constraint("Tangent", 83, 1, 84, 1))
sketch1.addConstraint(Sketcher.Constraint("Tangent", 84, 2, 85, 2))
sketch1.addConstraint(Sketcher.Constraint("Tangent", 85, 1, 86, 1))
sketch1.addConstraint(Sketcher.Constraint("Tangent", 86, 2, 79, 2))
sketch1.addConstraint(Sketcher.Constraint("Horizontal", 0))
sketch1.addConstraint(Sketcher.Constraint("Vertical", 2))
sketch1.addConstraint(Sketcher.Constraint("Horizontal", 4))
sketch1.addConstraint(Sketcher.Constraint("Vertical", 6))
sketch1.addConstraint(Sketcher.Constraint("Horizontal", 12))
sketch1.addConstraint(Sketcher.Constraint("Vertical", 14))
sketch1.addConstraint(Sketcher.Constraint("Horizontal", 16))
sketch1.addConstraint(Sketcher.Constraint("Horizontal", 19))
sketch1.addConstraint(Sketcher.Constraint("Vertical", 21))
sketch1.addConstraint(Sketcher.Constraint("Horizontal", 23))
sketch1.addConstraint(Sketcher.Constraint("Vertical", 25))
sketch1.addConstraint(Sketcher.Constraint("Horizontal", 27))
sketch1.addConstraint(Sketcher.Constraint("Horizontal", 31))
sketch1.addConstraint(Sketcher.Constraint("Vertical", 33))
sketch1.addConstraint(Sketcher.Constraint("Vertical", 37))
sketch1.addConstraint(Sketcher.Constraint("Horizontal", 41))
sketch1.addConstraint(Sketcher.Constraint("Vertical", 44))
sketch1.addConstraint(Sketcher.Constraint("Horizontal", 46))
sketch1.addConstraint(Sketcher.Constraint("Vertical", 48))
sketch1.addConstraint(Sketcher.Constraint("Horizontal", 50))
sketch1.addConstraint(Sketcher.Constraint("Horizontal", 54))
sketch1.addConstraint(Sketcher.Constraint("Vertical", 56))
sketch1.addConstraint(Sketcher.Constraint("Horizontal", 58))
sketch1.addConstraint(Sketcher.Constraint("Horizontal", 65))
sketch1.addConstraint(Sketcher.Constraint("Vertical", 67))
sketch1.addConstraint(Sketcher.Constraint("Horizontal", 69))
sketch1.addConstraint(Sketcher.Constraint("Vertical", 71))
sketch1.addConstraint(Sketcher.Constraint("Horizontal", 73))
sketch1.addConstraint(Sketcher.Constraint("Vertical", 77))
sketch1.addConstraint(Sketcher.Constraint("Vertical", 80))
sketch1.addConstraint(Sketcher.Constraint("Horizontal", 82))
sketch1.addConstraint(Sketcher.Constraint("Horizontal", 86))
sketch1.addConstraint(Sketcher.Constraint("Coincident", 8, 3, 3, 3))
sketch1.addConstraint(Sketcher.Constraint("Coincident", 35, 3, 5, 3))
sketch1.addConstraint(Sketcher.Constraint("Coincident", 53, 3, 1, 3))
sketch1.addConstraint(Sketcher.Constraint("Coincident", 87, 3, 7, 3))
sketch1.addConstraint(Sketcher.Constraint("Equal", 1, 3))
sketch1.addConstraint(Sketcher.Constraint("Equal", 3, 5))
sketch1.addConstraint(Sketcher.Constraint("Equal", 5, 7))
sketch1.addConstraint(Sketcher.Constraint("Equal", 9, 13))
sketch1.addConstraint(Sketcher.Constraint("Equal", 13, 15))
sketch1.addConstraint(Sketcher.Constraint("Equal", 18, 20))
sketch1.addConstraint(Sketcher.Constraint("Equal", 20, 22))
sketch1.addConstraint(Sketcher.Constraint("Equal", 22, 24))
sketch1.addConstraint(Sketcher.Constraint("Equal", 17, 26))
sketch1.addConstraint(Sketcher.Constraint("Equal", 11, 28))
sketch1.addConstraint(Sketcher.Constraint("Equal", 15, 30))
sketch1.addConstraint(Sketcher.Constraint("Equal", 30, 32))
sketch1.addConstraint(Sketcher.Constraint("Equal", 32, 34))
sketch1.addConstraint(Sketcher.Constraint("Equal", 8, 35))
sketch1.addConstraint(Sketcher.Constraint("Equal", 35, 36))
sketch1.addConstraint(Sketcher.Constraint("Equal", 34, 38))
sketch1.addConstraint(Sketcher.Constraint("Equal", 38, 40))
sketch1.addConstraint(Sketcher.Constraint("Equal", 40, 42))
sketch1.addConstraint(Sketcher.Constraint("Equal", 26, 43))
sketch1.addConstraint(Sketcher.Constraint("Equal", 24, 45))
sketch1.addConstraint(Sketcher.Constraint("Equal", 45, 47))
sketch1.addConstraint(Sketcher.Constraint("Equal", 47, 49))
sketch1.addConstraint(Sketcher.Constraint("Equal", 49, 51))
sketch1.addConstraint(Sketcher.Constraint("Equal", 43, 52))
sketch1.addConstraint(Sketcher.Constraint("Equal", 36, 53))
sketch1.addConstraint(Sketcher.Constraint("Equal", 42, 55))
sketch1.addConstraint(Sketcher.Constraint("Equal", 55, 57))
sketch1.addConstraint(Sketcher.Constraint("Equal", 28, 59))
sketch1.addConstraint(Sketcher.Constraint("Equal", 57, 61))
sketch1.addConstraint(Sketcher.Constraint("Equal", 53, 62))
sketch1.addConstraint(Sketcher.Constraint("Equal", 52, 63))
sketch1.addConstraint(Sketcher.Constraint("Equal", 51, 64))
sketch1.addConstraint(Sketcher.Constraint("Equal", 64, 66))
sketch1.addConstraint(Sketcher.Constraint("Equal", 66, 68))
sketch1.addConstraint(Sketcher.Constraint("Equal", 68, 70))
sketch1.addConstraint(Sketcher.Constraint("Equal", 63, 72))
sketch1.addConstraint(Sketcher.Constraint("Equal", 61, 74))
sketch1.addConstraint(Sketcher.Constraint("Equal", 74, 76))
sketch1.addConstraint(Sketcher.Constraint("Equal", 76, 78))
sketch1.addConstraint(Sketcher.Constraint("Equal", 78, 79))
sketch1.addConstraint(Sketcher.Constraint("Equal", 79, 81))
sketch1.addConstraint(Sketcher.Constraint("Equal", 81, 83))
sketch1.addConstraint(Sketcher.Constraint("Equal", 59, 85))
sketch1.addConstraint(Sketcher.Constraint("Equal", 62, 87))
sketch1.addConstraint(Sketcher.Constraint("Symmetric", 1, 3, 5, 3, -1, 1))
sketch1.addConstraint(Sketcher.Constraint("Symmetric", 32, 3, 55, 3, -1, 1))
sketch1.addConstraint(Sketcher.Constraint("Symmetric", 28, 3, 59, 3, -1, 1))
sketch1.addConstraint(Sketcher.Constraint("Symmetric", 36, 3, 62, 3, -1, 1))
sketch1.addConstraint(Sketcher.Constraint("Symmetric", 13, 3, 79, 3, -1, 1))
sketch1.addConstraint(Sketcher.Constraint("Symmetric", 9, 3, 83, 3, -1, 1))
sketch1.addConstraint(Sketcher.Constraint("Symmetric", 11, 3, 28, 3, -2))
sketch1.addConstraint(Sketcher.Constraint("Symmetric", 9, 3, 30, 3, -2))
sketch1.addConstraint(Sketcher.Constraint("Symmetric", 60, 2, 83, 1, -2))
sketch1.addConstraint(Sketcher.Constraint("Symmetric", 17, 3, 43, 3, -1))
sketch1.addConstraint(Sketcher.Constraint("Symmetric", 20, 3, 45, 3, -1))
sketch1.addConstraint(Sketcher.Constraint("Symmetric", 24, 3, 49, 3, -1))
sketch1.addConstraint(Sketcher.Constraint("Symmetric", 26, 3, 52, 3, -1))
sketch1.addConstraint(Sketcher.Constraint("Symmetric", 40, 3, 74, 3, -1))
sketch1.addConstraint(Sketcher.Constraint("Symmetric", 38, 3, 76, 3, -1))
sketch1.addConstraint(Sketcher.Constraint("PointOnObject", 36, 3, -2))
sketch1.addConstraint(Sketcher.Constraint("PointOnObject", 63, 3, -1))
sketch1.addConstraint(Sketcher.Constraint("PointOnObject", 72, 3, -1))
sketch1.addConstraint(Sketcher.Constraint("Perpendicular", 10, 29))
sketch1.addConstraint(Sketcher.Constraint("Parallel", 29, 39))
sketch1.addConstraint(Sketcher.Constraint("Horizontal", 17, 3, 26, 3))
sketch1.addConstraint(Sketcher.Constraint("Horizontal", 26, 3, 11, 1))
sketch1.addConstraint(Sketcher.Constraint("Vertical", 15, 3, 55, 3))
sketch1.addConstraint(Sketcher.Constraint("Equal", 50, 65))
sketch1.addConstraint(Sketcher.Constraint("Equal", 4, 2))
sketch1.addConstraint(Sketcher.Constraint("Equal", 48, 67))
sketch1.addConstraint(Sketcher.Constraint("Diameter", 8, 3.0))
sketch1.addConstraint(Sketcher.Constraint("Radius", 9, 6.0))
sketch1.addConstraint(Sketcher.Constraint("Radius", 18, 3.000001))
sketch1.addConstraint(Sketcher.Constraint("Diameter", 17, 4.5))
sketch1.addConstraint(Sketcher.Constraint("Radius", 1, 7.5))
sketch1.addConstraint(Sketcher.Constraint("DistanceX", 0, 2, 0, 1, 209.0))
sketch1.addConstraint(Sketcher.Constraint("DistanceY", 14, 2, 14, 1, 45.0))
sketch1.addConstraint(Sketcher.Constraint("DistanceY", 21, 2, 21, 1, 24.0))
sketch1.addConstraint(Sketcher.Constraint("DistanceX", 19, 1, 19, 2, 4.2))
sketch1.addConstraint(Sketcher.Constraint("DistanceY", 9, 3, -1, 1, 91.0))
sketch1.addConstraint(Sketcher.Constraint("DistanceX", 13, 3, -1, 1, 10.999999))
sketch1.addConstraint(Sketcher.Constraint("DistanceY", 18, 3, -1, 1, 28.000001))
sketch1.addConstraint(Sketcher.Constraint("DistanceX", -1, 1, 38, 3, 91.0))
sketch1.addConstraint(Sketcher.Constraint("DistanceY", -1, 1, 64, 3, 11.999999))
sketch1.addConstraint(Sketcher.Constraint("DistanceX", 17, 3, -1, 1, 97.5))
sketch1.addConstraint(Sketcher.Constraint("DistanceX", 18, 3, -1, 1, 89.599999))
sketch1.addConstraint(Sketcher.Constraint("DistanceX", 26, 3, -1, 1, 77.5))
sketch1.addConstraint(Sketcher.Constraint("DistanceY", 36, 3, -1, 1, 20.5))
sketch1.addConstraint(Sketcher.Constraint("DistanceX", -1, 1, 63, 3, 77.5))
sketch1.addConstraint(Sketcher.Constraint("DistanceX", -1, 1, 64, 3, 85.400001))
sketch1.addConstraint(Sketcher.Constraint("DistanceX", -1, 1, 72, 3, 97.5))
sketch1.addConstraint(Sketcher.Constraint("Radius", 11, 6.000003))
sketch1.addConstraint(Sketcher.Constraint("DistanceX", 41, 1, 41, 2, 36.514719))
sketch1.addConstraint(Sketcher.Constraint("DistanceX", 12, 1, 12, 2, 12.372583))
sketch1.addConstraint(Sketcher.Constraint("DistanceY", 38, 3, -1, 1, 68.372583))
sketch1.setExpression("Constraints[182]", "Params.sketch1_diameter")
sketch1.setExpression("Constraints[183]", "Params.sketch1_radius")
sketch1.setExpression("Constraints[184]", "Params.sketch1_radius2")
sketch1.setExpression("Constraints[185]", "Params.sketch1_diameter2")
sketch1.setExpression("Constraints[186]", "Params.sketch1_radius3")
pad1 = body.newObject("PartDesign::Pad", "Pad")
pad1.Profile = sketch1
pad1.setExpression("Length", "Params.pad1_length")

doc.recompute()
